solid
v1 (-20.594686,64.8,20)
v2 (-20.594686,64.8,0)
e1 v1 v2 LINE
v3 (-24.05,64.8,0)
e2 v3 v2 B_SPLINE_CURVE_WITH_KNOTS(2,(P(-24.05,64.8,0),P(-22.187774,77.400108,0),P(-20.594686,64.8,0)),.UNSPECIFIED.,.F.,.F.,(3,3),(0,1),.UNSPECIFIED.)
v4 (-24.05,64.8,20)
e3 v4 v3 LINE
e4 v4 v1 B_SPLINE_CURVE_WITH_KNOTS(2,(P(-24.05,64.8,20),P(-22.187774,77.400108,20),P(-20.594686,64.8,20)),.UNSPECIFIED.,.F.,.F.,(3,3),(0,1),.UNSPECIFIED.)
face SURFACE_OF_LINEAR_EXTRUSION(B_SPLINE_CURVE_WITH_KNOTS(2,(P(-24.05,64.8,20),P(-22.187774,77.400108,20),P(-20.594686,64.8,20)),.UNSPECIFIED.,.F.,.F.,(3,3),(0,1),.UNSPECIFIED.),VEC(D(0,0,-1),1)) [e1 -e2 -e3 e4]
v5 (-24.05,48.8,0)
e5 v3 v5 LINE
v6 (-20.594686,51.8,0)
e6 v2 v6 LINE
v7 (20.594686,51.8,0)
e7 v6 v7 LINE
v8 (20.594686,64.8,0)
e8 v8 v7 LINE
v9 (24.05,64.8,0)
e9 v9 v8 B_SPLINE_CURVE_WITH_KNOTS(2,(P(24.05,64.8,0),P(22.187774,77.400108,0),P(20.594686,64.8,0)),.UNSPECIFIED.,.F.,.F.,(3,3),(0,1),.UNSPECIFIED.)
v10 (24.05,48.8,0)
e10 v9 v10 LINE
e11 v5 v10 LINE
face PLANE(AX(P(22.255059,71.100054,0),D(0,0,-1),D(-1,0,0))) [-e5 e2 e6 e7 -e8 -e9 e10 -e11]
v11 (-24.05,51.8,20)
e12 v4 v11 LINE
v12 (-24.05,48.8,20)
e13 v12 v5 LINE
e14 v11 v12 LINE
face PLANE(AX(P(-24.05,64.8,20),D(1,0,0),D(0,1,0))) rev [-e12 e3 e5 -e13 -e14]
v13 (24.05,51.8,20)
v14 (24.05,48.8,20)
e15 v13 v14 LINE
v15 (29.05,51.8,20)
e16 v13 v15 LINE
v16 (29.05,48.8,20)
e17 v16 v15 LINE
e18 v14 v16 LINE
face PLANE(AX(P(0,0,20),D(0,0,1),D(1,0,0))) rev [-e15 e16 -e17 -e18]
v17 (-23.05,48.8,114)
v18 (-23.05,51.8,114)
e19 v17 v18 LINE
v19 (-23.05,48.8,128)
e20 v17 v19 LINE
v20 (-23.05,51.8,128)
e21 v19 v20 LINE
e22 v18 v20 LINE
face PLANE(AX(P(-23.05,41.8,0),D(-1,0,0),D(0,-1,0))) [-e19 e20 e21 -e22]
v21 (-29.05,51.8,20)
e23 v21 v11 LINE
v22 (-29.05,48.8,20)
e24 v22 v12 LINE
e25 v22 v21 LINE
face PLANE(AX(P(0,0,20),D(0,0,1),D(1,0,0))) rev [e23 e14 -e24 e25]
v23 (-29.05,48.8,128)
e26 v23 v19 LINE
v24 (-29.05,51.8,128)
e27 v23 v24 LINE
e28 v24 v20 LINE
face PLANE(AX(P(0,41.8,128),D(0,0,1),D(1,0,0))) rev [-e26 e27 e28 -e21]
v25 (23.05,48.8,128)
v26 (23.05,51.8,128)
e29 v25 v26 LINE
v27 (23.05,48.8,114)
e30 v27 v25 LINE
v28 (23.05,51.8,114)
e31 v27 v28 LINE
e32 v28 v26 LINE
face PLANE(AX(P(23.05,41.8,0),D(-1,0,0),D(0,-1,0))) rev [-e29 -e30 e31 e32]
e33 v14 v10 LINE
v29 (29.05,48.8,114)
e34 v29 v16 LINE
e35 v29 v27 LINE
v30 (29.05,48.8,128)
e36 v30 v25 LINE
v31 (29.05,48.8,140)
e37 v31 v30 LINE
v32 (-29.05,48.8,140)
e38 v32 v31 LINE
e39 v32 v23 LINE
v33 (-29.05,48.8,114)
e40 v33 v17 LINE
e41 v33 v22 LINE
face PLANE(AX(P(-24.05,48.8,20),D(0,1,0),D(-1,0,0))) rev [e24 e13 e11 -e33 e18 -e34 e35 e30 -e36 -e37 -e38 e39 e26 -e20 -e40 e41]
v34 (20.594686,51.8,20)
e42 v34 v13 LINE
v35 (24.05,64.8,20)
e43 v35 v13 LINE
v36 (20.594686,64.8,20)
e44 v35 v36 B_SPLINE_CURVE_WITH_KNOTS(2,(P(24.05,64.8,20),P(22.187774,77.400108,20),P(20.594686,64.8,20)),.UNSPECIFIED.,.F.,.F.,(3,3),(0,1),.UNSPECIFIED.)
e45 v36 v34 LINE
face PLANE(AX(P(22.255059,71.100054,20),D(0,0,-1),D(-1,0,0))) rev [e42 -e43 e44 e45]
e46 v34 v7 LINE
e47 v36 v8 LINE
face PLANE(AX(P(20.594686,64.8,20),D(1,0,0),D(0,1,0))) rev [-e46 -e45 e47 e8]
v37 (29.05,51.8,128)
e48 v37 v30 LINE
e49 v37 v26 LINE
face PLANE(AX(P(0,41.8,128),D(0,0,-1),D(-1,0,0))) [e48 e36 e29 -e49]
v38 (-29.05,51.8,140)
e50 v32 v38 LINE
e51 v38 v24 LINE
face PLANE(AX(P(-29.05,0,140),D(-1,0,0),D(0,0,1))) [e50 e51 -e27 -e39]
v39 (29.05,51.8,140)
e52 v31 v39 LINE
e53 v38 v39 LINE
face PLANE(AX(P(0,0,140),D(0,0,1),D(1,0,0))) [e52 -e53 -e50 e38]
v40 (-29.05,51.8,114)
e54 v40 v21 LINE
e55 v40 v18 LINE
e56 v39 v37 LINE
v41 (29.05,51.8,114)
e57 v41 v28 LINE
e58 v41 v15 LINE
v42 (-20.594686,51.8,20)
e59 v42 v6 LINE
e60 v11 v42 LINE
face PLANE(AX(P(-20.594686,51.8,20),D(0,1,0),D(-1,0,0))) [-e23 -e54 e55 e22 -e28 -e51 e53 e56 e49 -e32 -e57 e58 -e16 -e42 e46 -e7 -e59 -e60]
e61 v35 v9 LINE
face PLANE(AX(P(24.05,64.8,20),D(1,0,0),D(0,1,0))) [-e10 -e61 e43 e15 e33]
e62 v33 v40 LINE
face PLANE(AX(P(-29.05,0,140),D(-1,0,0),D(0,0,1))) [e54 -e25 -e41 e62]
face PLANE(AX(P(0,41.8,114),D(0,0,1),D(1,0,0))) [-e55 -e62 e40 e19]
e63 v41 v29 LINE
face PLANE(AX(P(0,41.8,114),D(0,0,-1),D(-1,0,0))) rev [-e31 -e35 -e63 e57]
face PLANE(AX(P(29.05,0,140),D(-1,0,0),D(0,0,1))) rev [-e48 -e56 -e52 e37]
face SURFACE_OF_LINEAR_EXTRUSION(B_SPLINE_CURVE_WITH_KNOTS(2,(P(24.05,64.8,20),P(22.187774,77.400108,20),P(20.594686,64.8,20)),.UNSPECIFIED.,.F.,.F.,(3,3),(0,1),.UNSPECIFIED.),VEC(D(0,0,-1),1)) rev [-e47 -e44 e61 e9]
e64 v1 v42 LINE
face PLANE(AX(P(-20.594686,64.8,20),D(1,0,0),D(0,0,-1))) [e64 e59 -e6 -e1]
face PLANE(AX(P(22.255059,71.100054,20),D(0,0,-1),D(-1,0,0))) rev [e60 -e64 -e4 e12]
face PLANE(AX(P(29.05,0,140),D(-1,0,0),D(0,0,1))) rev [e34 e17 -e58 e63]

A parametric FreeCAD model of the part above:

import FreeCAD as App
import Part
import Sketcher

V = App.Vector

doc = App.newDocument("Part")
params = doc.addObject("Spreadsheet::Sheet", "Params")
for row, (alias, value) in enumerate([
    ("sketch1_height", "16 mm"),
    ("sketch1_height2", "13 mm"),
    ("pad1_length", "20 mm"),
    ("sketch2_height", "3 mm"),
    ("sketch2_width", "58.1 mm"),
    ("pad2_length", "120 mm"),
    ("sketch3_width", "6 mm"),
    ("sketch3_height", "14 mm"),
    ("pocket1_length", "10 mm"),
], start=1):
    params.set(f"A{row}", alias)
    params.set(f"B{row}", "=" + value)
    params.setAlias(f"B{row}", alias)

body = doc.addObject("PartDesign::Body", "Body")

sketch1 = body.newObject("Sketcher::SketchObject", "Sketch")
sketch1.AttachmentSupport = (doc.getObject("XY_Plane"), [""])
sketch1.MapMode = "FlatFace"
sketch1.addGeometry(Part.LineSegment(V(-24.05, 64.8, 0), V(-24.05, 48.8, 0)), False)
sketch1.addGeometry(Part.LineSegment(V(-24.05, 48.8, 0), V(24.05, 48.8, 0)), False)
sketch1.addGeometry(Part.LineSegment(V(24.05, 48.8, 0), V(24.05, 64.8, 0)), False)
sketch1.addGeometry(Part.BSplineCurve([V(24.05, 64.8, 0), V(22.187774, 77.400108, 0), V(20.594686, 64.8, 0)], [3, 3], [0, 1], False, 2, [1, 1, 1], False), False)
sketch1.addGeometry(Part.LineSegment(V(20.594686, 64.8, 0), V(20.594686, 51.8, 0)), False)
sketch1.addGeometry(Part.LineSegment(V(20.594686, 51.8, 0), V(-20.594686, 51.8, 0)), False)
sketch1.addGeometry(Part.LineSegment(V(-20.594686, 51.8, 0), V(-20.594686, 64.8, 0)), False)
sketch1.addGeometry(Part.BSplineCurve([V(-24.05, 64.8, 0), V(-22.187774, 77.400108, 0), V(-20.594686, 64.8, 0)], [3, 3], [0, 1], False, 2, [1, 1, 1], False), False)
sketch1.addConstraint(Sketcher.Constraint("Block", 3))
sketch1.addConstraint(Sketcher.Constraint("Block", 7))
sketch1.addConstraint(Sketcher.Constraint("Coincident", 0, 2, 1, 1))
sketch1.addConstraint(Sketcher.Constraint("Coincident", 1, 2, 2, 1))
sketch1.addConstraint(Sketcher.Constraint("Coincident", 2, 2, 3, 1))
sketch1.addConstraint(Sketcher.Constraint("Coincident", 3, 2, 4, 1))
sketch1.addConstraint(Sketcher.Constraint("Coincident", 4, 2, 5, 1))
sketch1.addConstraint(Sketcher.Constraint("Coincident", 5, 2, 6, 1))
sketch1.addConstraint(Sketcher.Constraint("Coincident", 6, 2, 7, 2))
sketch1.addConstraint(Sketcher.Constraint("Coincident", 7, 1, 0, 1))
sketch1.addConstraint(Sketcher.Constraint("Vertical", 0))
sketch1.addConstraint(Sketcher.Constraint("Horizontal", 1))
sketch1.addConstraint(Sketcher.Constraint("Vertical", 2))
sketch1.addConstraint(Sketcher.Constraint("Vertical", 4))
sketch1.addConstraint(Sketcher.Constraint("Horizontal", 5))
sketch1.addConstraint(Sketcher.Constraint("Vertical", 6))
sketch1.addConstraint(Sketcher.Constraint("DistanceY", 0, 2, 0, 1, 16.0))
sketch1.addConstraint(Sketcher.Constraint("DistanceY", 4, 2, 4, 1, 13.0))
sketch1.setExpression("Constraints[16]", "Params.sketch1_height")
sketch1.setExpression("Constraints[17]", "Params.sketch1_height2")
pad1 = body.newObject("PartDesign::Pad", "Pad")
pad1.Profile = sketch1
pad1.setExpression("Length", "Params.pad1_length")

sketch2 = body.newObject("Sketcher::SketchObject", "Sketch001")
sketch2.AttachmentSupport = (doc.getObject("XY_Plane"), [""])
sketch2.MapMode = "FlatFace"
sketch2.AttachmentOffset = App.Placement(V(0, 0, 20), App.Rotation())
sketch2.addGeometry(Part.LineSegment(V(-29.1, 51.8, 0), V(-29.1, 48.8, 0)), False)
sketch2.addGeometry(Part.LineSegment(V(-29.1, 48.8, 0), V(29.1, 48.8, 0)), False)
sketch2.addGeometry(Part.LineSegment(V(29.1, 48.8, 0), V(29.1, 51.8, 0)), False)
sketch2.addGeometry(Part.LineSegment(V(29.1, 51.8, 0), V(-29.1, 51.8, 0)), False)
sketch2.addConstraint(Sketcher.Constraint("Coincident", 0, 2, 1, 1))
sketch2.addConstraint(Sketcher.Constraint("Coincident", 1, 2, 2, 1))
sketch2.addConstraint(Sketcher.Constraint("Coincident", 2, 2, 3, 1))
sketch2.addConstraint(Sketcher.Constraint("Coincident", 3, 2, 0, 1))
sketch2.addConstraint(Sketcher.Constraint("Vertical", 0))
sketch2.addConstraint(Sketcher.Constraint("Horizontal", 1))
sketch2.addConstraint(Sketcher.Constraint("Vertical", 2))
sketch2.addConstraint(Sketcher.Constraint("Horizontal", 3))
sketch2.addConstraint(Sketcher.Constraint("DistanceY", 0, 2, 0, 1, 3.0))
sketch2.addConstraint(Sketcher.Constraint("DistanceX", 1, 1, 1, 2, 58.1))
sketch2.addConstraint(Sketcher.Constraint("DistanceY", -1, 1, 0, 2, 48.8))
sketch2.addConstraint(Sketcher.Constraint("DistanceX", 0, 2, -1, 1, 29.05))
sketch2.setExpression("Constraints[8]", "Params.sketch2_height")
sketch2.setExpression("Constraints[9]", "Params.sketch2_width")
pad2 = body.newObject("PartDesign::Pad", "Pad001")
pad2.Profile = sketch2
pad2.setExpression("Length", "Params.pad2_length")

sketch3 = body.newObject("Sketcher::SketchObject", "Sketch002")
sketch3.AttachmentSupport = (doc.getObject("XZ_Plane"), [""])
sketch3.MapMode = "FlatFace"
sketch3.AttachmentOffset = App.Placement(V(0, 0, -51.8), App.Rotation())
sketch3.addGeometry(Part.LineSegment(V(-29, 114, 0), V(-29, 128, 0)), False)
sketch3.addGeometry(Part.LineSegment(V(-29, 128, 0), V(-23, 128, 0)), False)
sketch3.addGeometry(Part.LineSegment(V(-23, 128, 0), V(-23, 114, 0)), False)
sketch3.addGeometry(Part.LineSegment(V(-23, 114, 0), V(-29, 114, 0)), False)
sketch3.addGeometry(Part.LineSegment(V(23, 114, 0), V(23, 128, 0)), False)
sketch3.addGeometry(Part.LineSegment(V(23, 128, 0), V(29, 128, 0)), False)
sketch3.addGeometry(Part.LineSegment(V(29, 128, 0), V(29, 114, 0)), False)
sketch3.addGeometry(Part.LineSegment(V(29, 114, 0), V(23, 114, 0)), False)
sketch3.addConstraint(Sketcher.Constraint("Coincident", 0, 2, 1, 1))
sketch3.addConstraint(Sketcher.Constraint("Coincident", 1, 2, 2, 1))
sketch3.addConstraint(Sketcher.Constraint("Coincident", 2, 2, 3, 1))
sketch3.addConstraint(Sketcher.Constraint("Coincident", 3, 2, 0, 1))
sketch3.addConstraint(Sketcher.Constraint("Coincident", 4, 2, 5, 1))
sketch3.addConstraint(Sketcher.Constraint("Coincident", 5, 2, 6, 1))
sketch3.addConstraint(Sketcher.Constraint("Coincident", 6, 2, 7, 1))
sketch3.addConstraint(Sketcher.Constraint("Coincident", 7, 2, 4, 1))
sketch3.addConstraint(Sketcher.Constraint("Vertical", 0))
sketch3.addConstraint(Sketcher.Constraint("Horizontal", 1))
sketch3.addConstraint(Sketcher.Constraint("Vertical", 2))
sketch3.addConstraint(Sketcher.Constraint("Horizontal", 3))
sketch3.addConstraint(Sketcher.Constraint("Vertical", 4))
sketch3.addConstraint(Sketcher.Constraint("Horizontal", 5))
sketch3.addConstraint(Sketcher.Constraint("Vertical", 6))
sketch3.addConstraint(Sketcher.Constraint("Horizontal", 7))
sketch3.addConstraint(Sketcher.Constraint("Symmetric", 1, 2, 4, 2, -2))
sketch3.addConstraint(Sketcher.Constraint("Symmetric", 3, 2, 6, 2, -2))
sketch3.addConstraint(Sketcher.Constraint("DistanceX", 1, 1, 1, 2, 6.0))
sketch3.addConstraint(Sketcher.Constraint("DistanceY", 0, 1, 0, 2, 14.0))
sketch3.addConstraint(Sketcher.Constraint("DistanceY", -1, 1, 0, 2, 128.0))
sketch3.addConstraint(Sketcher.Constraint("DistanceX", 1, 2, 4, 2, 46.1))
sketch3.setExpression("Constraints[18]", "Params.sketch3_width")
sketch3.setExpression("Constraints[19]", "Params.sketch3_height")
pocket1 = body.newObject("PartDesign::Pocket", "Pocket")
pocket1.Profile = sketch3
pocket1.setExpression("Length", "Params.pocket1_length")
pocket1.Reversed = True

doc.recompute()
